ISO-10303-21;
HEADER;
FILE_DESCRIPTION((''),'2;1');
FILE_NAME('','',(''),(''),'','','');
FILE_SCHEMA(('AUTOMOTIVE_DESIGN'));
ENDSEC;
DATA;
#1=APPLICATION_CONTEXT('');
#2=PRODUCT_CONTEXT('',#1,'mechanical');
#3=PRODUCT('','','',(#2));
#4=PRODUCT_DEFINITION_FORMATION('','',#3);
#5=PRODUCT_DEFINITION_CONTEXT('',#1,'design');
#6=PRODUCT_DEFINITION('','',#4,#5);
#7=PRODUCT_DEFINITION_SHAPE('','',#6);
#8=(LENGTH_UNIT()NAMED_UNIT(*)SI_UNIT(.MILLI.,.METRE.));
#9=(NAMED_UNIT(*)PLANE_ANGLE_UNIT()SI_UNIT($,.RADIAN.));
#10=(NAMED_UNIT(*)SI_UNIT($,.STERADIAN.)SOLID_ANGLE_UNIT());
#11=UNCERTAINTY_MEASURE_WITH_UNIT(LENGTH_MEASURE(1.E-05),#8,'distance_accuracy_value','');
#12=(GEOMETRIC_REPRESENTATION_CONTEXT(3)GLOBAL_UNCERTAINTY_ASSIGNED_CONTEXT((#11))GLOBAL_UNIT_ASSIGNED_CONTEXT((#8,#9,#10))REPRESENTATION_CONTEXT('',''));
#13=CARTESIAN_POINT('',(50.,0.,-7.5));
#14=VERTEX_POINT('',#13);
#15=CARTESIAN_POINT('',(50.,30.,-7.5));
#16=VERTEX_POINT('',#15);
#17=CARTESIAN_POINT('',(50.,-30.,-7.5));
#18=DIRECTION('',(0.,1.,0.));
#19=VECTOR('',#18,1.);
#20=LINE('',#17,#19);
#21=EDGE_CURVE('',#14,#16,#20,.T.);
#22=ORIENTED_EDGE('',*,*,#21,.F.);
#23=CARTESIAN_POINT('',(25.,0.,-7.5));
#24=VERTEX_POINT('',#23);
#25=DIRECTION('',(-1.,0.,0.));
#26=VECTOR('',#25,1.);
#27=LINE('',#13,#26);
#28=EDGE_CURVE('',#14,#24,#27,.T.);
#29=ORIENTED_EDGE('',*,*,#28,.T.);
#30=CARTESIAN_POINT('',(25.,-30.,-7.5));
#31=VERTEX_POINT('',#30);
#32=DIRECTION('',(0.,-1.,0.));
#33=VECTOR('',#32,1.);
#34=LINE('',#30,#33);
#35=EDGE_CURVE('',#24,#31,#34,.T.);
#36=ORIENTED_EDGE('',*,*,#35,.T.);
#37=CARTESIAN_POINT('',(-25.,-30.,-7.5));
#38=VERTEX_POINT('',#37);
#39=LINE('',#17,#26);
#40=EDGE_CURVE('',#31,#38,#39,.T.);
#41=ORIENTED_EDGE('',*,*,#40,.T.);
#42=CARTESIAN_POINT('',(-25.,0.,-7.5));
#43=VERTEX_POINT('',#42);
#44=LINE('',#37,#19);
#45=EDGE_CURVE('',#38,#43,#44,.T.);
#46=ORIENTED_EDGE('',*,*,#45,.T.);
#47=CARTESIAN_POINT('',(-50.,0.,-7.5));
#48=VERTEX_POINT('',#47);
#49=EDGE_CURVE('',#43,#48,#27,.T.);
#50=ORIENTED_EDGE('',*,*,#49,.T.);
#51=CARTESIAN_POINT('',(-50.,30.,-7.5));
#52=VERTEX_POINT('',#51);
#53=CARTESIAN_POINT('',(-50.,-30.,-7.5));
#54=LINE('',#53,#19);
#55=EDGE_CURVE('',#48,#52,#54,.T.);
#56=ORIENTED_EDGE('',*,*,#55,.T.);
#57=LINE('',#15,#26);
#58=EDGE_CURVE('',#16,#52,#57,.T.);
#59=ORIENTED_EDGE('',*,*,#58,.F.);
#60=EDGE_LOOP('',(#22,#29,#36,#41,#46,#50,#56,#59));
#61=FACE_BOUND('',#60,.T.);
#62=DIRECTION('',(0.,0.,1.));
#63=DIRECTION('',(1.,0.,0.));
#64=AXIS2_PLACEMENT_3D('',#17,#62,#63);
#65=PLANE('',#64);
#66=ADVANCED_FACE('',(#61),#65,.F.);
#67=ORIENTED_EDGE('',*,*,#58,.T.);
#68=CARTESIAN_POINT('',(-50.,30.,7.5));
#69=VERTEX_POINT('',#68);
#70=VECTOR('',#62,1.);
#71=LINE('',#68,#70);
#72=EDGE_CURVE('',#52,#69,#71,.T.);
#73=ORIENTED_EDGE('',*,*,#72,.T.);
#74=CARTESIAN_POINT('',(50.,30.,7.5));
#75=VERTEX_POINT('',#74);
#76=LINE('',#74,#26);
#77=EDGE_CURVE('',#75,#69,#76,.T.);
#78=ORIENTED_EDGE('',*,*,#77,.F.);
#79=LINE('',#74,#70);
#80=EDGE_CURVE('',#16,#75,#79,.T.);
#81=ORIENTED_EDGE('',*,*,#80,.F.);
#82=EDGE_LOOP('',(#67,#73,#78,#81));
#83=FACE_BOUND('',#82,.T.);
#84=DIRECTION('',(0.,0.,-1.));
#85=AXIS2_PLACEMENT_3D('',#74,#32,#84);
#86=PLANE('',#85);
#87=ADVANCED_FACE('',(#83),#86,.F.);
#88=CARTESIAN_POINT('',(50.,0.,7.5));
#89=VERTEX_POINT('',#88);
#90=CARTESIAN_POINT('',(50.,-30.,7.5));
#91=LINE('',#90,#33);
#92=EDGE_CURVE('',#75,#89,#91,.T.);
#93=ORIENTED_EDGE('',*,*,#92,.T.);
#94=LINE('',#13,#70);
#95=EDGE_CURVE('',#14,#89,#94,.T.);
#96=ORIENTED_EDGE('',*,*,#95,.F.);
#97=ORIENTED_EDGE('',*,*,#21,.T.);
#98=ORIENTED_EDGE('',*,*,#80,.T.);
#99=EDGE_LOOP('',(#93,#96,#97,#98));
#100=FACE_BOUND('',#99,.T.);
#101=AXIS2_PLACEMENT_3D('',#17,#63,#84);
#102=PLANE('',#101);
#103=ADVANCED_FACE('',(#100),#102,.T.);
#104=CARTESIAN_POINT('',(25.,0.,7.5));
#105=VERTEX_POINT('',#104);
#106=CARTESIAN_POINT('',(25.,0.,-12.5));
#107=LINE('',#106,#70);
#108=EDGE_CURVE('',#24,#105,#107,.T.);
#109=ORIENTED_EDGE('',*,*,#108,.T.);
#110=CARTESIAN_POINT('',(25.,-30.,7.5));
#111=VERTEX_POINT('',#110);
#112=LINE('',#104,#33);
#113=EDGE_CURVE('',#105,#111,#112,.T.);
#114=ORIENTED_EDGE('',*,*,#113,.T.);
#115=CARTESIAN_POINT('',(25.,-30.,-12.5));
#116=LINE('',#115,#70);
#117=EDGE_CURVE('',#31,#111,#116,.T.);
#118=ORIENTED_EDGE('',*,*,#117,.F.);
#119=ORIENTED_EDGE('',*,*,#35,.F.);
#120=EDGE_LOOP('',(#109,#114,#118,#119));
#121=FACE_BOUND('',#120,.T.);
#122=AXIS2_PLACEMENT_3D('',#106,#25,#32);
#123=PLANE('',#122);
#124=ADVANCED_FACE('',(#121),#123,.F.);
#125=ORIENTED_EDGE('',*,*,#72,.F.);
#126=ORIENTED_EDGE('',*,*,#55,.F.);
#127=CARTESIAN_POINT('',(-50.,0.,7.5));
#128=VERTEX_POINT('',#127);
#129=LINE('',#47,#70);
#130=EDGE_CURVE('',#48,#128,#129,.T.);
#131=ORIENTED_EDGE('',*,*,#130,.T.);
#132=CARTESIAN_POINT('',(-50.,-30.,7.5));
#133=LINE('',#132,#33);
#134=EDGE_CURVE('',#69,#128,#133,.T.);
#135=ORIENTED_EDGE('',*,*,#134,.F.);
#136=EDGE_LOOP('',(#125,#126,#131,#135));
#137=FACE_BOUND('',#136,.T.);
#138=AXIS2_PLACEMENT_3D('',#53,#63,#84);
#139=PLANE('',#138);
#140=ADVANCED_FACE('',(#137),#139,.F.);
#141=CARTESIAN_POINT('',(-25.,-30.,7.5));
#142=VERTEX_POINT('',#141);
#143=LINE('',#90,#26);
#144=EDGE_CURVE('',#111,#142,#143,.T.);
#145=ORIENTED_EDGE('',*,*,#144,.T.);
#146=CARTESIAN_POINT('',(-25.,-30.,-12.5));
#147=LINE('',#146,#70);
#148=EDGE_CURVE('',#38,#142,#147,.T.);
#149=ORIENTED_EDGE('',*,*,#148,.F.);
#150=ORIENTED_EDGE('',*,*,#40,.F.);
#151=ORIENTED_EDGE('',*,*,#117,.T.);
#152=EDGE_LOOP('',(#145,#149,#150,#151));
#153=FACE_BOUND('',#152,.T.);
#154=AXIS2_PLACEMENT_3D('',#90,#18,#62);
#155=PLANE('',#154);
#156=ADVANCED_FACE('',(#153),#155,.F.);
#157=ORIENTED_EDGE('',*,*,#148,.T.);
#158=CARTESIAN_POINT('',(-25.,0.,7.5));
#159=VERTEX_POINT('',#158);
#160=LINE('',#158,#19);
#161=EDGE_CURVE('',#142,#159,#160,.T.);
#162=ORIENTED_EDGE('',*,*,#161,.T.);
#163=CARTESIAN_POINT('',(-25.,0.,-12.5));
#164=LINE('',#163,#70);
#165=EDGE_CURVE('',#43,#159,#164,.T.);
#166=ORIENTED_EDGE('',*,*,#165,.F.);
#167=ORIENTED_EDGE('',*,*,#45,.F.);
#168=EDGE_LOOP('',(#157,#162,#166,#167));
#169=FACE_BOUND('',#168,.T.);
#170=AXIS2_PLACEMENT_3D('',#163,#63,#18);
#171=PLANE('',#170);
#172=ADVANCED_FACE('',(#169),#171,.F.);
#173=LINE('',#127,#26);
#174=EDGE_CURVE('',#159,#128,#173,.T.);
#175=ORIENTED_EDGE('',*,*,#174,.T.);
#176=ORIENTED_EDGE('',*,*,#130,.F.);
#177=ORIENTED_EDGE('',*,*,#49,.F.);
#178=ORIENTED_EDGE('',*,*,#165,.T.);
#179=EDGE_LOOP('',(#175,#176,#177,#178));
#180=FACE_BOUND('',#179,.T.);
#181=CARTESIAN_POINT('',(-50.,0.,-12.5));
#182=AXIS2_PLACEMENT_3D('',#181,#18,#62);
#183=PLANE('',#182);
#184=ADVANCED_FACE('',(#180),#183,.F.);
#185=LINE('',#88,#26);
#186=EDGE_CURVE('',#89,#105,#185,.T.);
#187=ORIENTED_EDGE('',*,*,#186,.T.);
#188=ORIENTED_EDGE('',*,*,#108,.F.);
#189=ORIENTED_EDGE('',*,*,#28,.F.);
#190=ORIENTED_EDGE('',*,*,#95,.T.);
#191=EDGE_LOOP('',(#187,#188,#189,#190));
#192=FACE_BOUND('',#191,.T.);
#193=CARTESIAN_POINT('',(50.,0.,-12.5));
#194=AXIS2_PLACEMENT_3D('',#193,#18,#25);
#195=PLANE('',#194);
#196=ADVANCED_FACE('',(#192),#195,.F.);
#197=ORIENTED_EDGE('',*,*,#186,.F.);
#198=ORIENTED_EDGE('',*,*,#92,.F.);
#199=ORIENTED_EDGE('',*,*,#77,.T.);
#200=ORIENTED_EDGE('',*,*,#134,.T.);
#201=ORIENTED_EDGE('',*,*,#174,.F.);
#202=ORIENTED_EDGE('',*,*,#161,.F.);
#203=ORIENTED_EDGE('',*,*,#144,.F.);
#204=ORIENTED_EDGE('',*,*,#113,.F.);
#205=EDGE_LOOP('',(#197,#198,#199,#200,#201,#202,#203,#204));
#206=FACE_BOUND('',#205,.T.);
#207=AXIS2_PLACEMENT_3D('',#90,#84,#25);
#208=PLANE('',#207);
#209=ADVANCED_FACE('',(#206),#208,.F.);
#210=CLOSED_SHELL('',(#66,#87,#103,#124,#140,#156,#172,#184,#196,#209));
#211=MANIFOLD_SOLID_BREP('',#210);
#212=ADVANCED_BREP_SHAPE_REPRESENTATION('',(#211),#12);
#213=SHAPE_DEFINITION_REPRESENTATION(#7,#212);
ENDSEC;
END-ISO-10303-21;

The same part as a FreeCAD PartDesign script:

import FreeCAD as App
import Part
import Sketcher

doc = App.newDocument("Part")
params = doc.addObject("Spreadsheet::Sheet", "Params")
for row, (alias, value) in enumerate([
    ("sketch1_width", "60 mm"),
    ("sketch1_height", "15 mm"),
    ("pad1_length", "100 mm"),
    ("sketch2_width", "25 mm"),
    ("sketch2_height", "30 mm"),
    ("pocket1_length", "20 mm"),
], start=1):
    params.set(f"A{row}", alias)
    params.set(f"B{row}", "=" + value)
    params.setAlias(f"B{row}", alias)

body = doc.addObject("PartDesign::Body", "Body")

sketch1 = doc.addObject("Sketcher::SketchObject", "Sketch")
body.addObject(sketch1)
sketch1.AttachmentSupport = (doc.YZ_Plane, [""])
sketch1.MapMode = "FlatFace"
sketch1.AttachmentOffset = App.Placement(App.Vector(0, 0, -50), App.Rotation())
sketch1.addGeometry(Part.LineSegment(App.Vector(-30, 8, 0), App.Vector(-30, -8, 0)), False)
sketch1.addGeometry(Part.LineSegment(App.Vector(-30, -8, 0), App.Vector(30, -8, 0)), False)
sketch1.addGeometry(Part.LineSegment(App.Vector(30, -8, 0), App.Vector(30, 8, 0)), False)
sketch1.addGeometry(Part.LineSegment(App.Vector(30, 8, 0), App.Vector(-30, 8, 0)), False)
sketch1.addConstraint(Sketcher.Constraint("Coincident", 0, 2, 1, 1))
sketch1.addConstraint(Sketcher.Constraint("Coincident", 1, 2, 2, 1))
sketch1.addConstraint(Sketcher.Constraint("Coincident", 2, 2, 3, 1))
sketch1.addConstraint(Sketcher.Constraint("Coincident", 3, 2, 0, 1))
sketch1.addConstraint(Sketcher.Constraint("Vertical", 0))
sketch1.addConstraint(Sketcher.Constraint("Horizontal", 1))
sketch1.addConstraint(Sketcher.Constraint("Vertical", 2))
sketch1.addConstraint(Sketcher.Constraint("Horizontal", 3))
sketch1.addConstraint(Sketcher.Constraint("Symmetric", 0, 2, 2, 2, -1, 1))
sketch1.addConstraint(Sketcher.Constraint("DistanceX", 1, 1, 1, 2, 60.0))
sketch1.addConstraint(Sketcher.Constraint("DistanceY", 0, 2, 0, 1, 15.0))
sketch1.setExpression("Constraints[9]", "Params.sketch1_width")
sketch1.setExpression("Constraints[10]", "Params.sketch1_height")
pad1 = doc.addObject("PartDesign::Pad", "Pad")
body.addObject(pad1)
pad1.Profile = sketch1
pad1.setExpression("Length", "Params.pad1_length")

sketch2 = doc.addObject("Sketcher::SketchObject", "Sketch001")
body.addObject(sketch2)
sketch2.AttachmentSupport = (doc.XY_Plane, [""])
sketch2.MapMode = "FlatFace"
sketch2.AttachmentOffset = App.Placement(App.Vector(0, 0, 7.5), App.Rotation())
sketch2.addGeometry(Part.LineSegment(App.Vector(-50, 0, 0), App.Vector(-50, -30, 0)), False)
sketch2.addGeometry(Part.LineSegment(App.Vector(-50, -30, 0), App.Vector(-25, -30, 0)), False)
sketch2.addGeometry(Part.LineSegment(App.Vector(-25, -30, 0), App.Vector(-25, 0, 0)), False)
sketch2.addGeometry(Part.LineSegment(App.Vector(-25, 0, 0), App.Vector(-50, 0, 0)), False)
sketch2.addGeometry(Part.LineSegment(App.Vector(25, 0, 0), App.Vector(25, -30, 0)), False)
sketch2.addGeometry(Part.LineSegment(App.Vector(25, -30, 0), App.Vector(50, -30, 0)), False)
sketch2.addGeometry(Part.LineSegment(App.Vector(50, -30, 0), App.Vector(50, 0, 0)), False)
sketch2.addGeometry(Part.LineSegment(App.Vector(50, 0, 0), App.Vector(25, 0, 0)), False)
sketch2.addConstraint(Sketcher.Constraint("Coincident", 0, 2, 1, 1))
sketch2.addConstraint(Sketcher.Constraint("Coincident", 1, 2, 2, 1))
sketch2.addConstraint(Sketcher.Constraint("Coincident", 2, 2, 3, 1))
sketch2.addConstraint(Sketcher.Constraint("Coincident", 3, 2, 0, 1))
sketch2.addConstraint(Sketcher.Constraint("Coincident", 4, 2, 5, 1))
sketch2.addConstraint(Sketcher.Constraint("Coincident", 5, 2, 6, 1))
sketch2.addConstraint(Sketcher.Constraint("Coincident", 6, 2, 7, 1))
sketch2.addConstraint(Sketcher.Constraint("Coincident", 7, 2, 4, 1))
sketch2.addConstraint(Sketcher.Constraint("Vertical", 0))
sketch2.addConstraint(Sketcher.Constraint("Horizontal", 1))
sketch2.addConstraint(Sketcher.Constraint("Vertical", 2))
sketch2.addConstraint(Sketcher.Constraint("Horizontal", 3))
sketch2.addConstraint(Sketcher.Constraint("Vertical", 4))
sketch2.addConstraint(Sketcher.Constraint("Horizontal", 5))
sketch2.addConstraint(Sketcher.Constraint("Vertical", 6))
sketch2.addConstraint(Sketcher.Constraint("Horizontal", 7))
sketch2.addConstraint(Sketcher.Constraint("Symmetric", 3, 2, 6, 2, -1, 1))
sketch2.addConstraint(Sketcher.Constraint("Symmetric", 1, 2, 4, 2, -2))
sketch2.addConstraint(Sketcher.Constraint("PointOnObject", 2, 2, -1))
sketch2.addConstraint(Sketcher.Constraint("DistanceX", 1, 1, 1, 2, 25.0))
sketch2.addConstraint(Sketcher.Constraint("DistanceY", 0, 2, 0, 1, 30.0))
sketch2.addConstraint(Sketcher.Constraint("DistanceX", 0, 2, -1, 1, 50.0))
sketch2.setExpression("Constraints[19]", "Params.sketch2_width")
sketch2.setExpression("Constraints[20]", "Params.sketch2_height")
pocket1 = doc.addObject("PartDesign::Pocket", "Pocket")
body.addObject(pocket1)
pocket1.Profile = sketch2
pocket1.setExpression("Length", "Params.pocket1_length")

doc.recompute()
